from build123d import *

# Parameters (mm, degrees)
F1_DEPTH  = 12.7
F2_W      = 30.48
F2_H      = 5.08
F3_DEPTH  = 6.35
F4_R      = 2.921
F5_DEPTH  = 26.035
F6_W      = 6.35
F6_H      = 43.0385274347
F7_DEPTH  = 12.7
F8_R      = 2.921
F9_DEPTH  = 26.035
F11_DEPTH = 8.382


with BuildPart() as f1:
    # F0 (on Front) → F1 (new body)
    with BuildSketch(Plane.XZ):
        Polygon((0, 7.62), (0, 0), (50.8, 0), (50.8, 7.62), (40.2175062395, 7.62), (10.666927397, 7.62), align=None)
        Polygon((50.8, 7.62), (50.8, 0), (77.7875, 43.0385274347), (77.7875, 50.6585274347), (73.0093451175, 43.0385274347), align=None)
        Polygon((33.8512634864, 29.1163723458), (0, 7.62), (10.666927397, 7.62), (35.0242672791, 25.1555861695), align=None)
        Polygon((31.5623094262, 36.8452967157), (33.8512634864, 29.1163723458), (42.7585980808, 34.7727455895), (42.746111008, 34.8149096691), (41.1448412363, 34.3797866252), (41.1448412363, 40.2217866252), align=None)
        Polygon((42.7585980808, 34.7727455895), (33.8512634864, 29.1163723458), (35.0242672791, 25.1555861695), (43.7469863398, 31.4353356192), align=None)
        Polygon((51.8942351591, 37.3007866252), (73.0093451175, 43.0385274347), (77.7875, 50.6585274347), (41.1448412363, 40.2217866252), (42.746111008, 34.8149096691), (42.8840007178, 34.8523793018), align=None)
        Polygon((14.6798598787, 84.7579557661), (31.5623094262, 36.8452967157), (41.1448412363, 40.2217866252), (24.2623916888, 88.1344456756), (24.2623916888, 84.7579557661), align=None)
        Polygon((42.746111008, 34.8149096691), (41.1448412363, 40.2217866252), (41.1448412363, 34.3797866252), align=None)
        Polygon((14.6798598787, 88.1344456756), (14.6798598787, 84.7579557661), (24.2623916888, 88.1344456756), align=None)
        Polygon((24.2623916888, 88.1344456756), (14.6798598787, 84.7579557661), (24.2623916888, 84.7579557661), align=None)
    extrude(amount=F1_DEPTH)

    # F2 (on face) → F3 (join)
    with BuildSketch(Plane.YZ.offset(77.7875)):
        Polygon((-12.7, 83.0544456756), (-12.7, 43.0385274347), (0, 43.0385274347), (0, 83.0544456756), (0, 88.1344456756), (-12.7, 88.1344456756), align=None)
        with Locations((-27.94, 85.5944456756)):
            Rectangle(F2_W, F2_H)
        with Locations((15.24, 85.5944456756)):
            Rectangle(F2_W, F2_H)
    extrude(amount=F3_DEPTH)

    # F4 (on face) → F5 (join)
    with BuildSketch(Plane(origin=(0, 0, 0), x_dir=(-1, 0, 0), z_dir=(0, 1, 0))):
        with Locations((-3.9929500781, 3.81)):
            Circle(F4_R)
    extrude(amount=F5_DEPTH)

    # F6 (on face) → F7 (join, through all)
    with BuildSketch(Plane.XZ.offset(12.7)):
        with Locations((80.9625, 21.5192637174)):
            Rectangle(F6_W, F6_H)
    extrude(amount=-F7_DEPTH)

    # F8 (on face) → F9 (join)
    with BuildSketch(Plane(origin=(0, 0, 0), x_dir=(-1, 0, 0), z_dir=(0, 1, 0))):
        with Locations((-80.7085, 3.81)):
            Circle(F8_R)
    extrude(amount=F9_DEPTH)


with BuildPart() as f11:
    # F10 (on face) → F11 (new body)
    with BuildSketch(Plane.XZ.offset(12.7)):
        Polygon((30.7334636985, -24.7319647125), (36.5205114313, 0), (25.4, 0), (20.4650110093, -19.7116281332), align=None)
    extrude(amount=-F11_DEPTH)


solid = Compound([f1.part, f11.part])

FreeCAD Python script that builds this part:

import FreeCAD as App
import Part
import Sketcher

V = App.Vector
Q = App.Units.Quantity


def add_polygon(sketch, points):
    """Adds a closed chain of lines whose ends are joined by coincident constraints."""
    first, n = sketch.GeometryCount, len(points)
    for a, b in zip(points, points[1:] + points[:1]):
        sketch.addGeometry(Part.LineSegment(App.Vector(*a, 0), App.Vector(*b, 0)), False)
    for i in range(n):
        sketch.addConstraint(Sketcher.Constraint("Coincident", first + i, 2, first + (i + 1) % n, 1))

doc = App.newDocument("Part")
body = doc.addObject("PartDesign::Body", "Body")

sketch1 = body.newObject("Sketcher::SketchObject", "Sketch")
sketch1.AttachmentSupport = (doc.getObject("XZ_Plane"), [""])
sketch1.MapMode = "FlatFace"
add_polygon(sketch1, [(77.787, 50.659), (41.145, 40.222), (24.262, 88.134), (14.68, 88.134), (14.68, 84.758), (31.562, 36.845), (33.851, 29.116), (0, 7.62), (0, 0), (50.8, 0), (77.787, 43.039)])
add_polygon(sketch1, [(42.759, 34.773), (42.746, 34.815), (42.884, 34.852), (51.894, 37.301), (73.009, 43.039), (50.8, 7.62), (10.667, 7.62), (35.024, 25.156), (43.747, 31.435)])
sketch1.addConstraint([
    Sketcher.Constraint("Horizontal", 2),
    Sketcher.Constraint("Vertical", 3),
    Sketcher.Constraint("Vertical", 7),
    Sketcher.Constraint("Horizontal", 8),
    Sketcher.Constraint("Vertical", 10),
    Sketcher.Constraint("Horizontal", 16),
    Sketcher.Constraint("Coincident", 7, 2, -1, 1),
    Sketcher.Constraint("Parallel", 1, 4),
    Sketcher.Constraint("Parallel", 5, 11),
    Sketcher.Constraint("Parallel", 12, 13),
    Sketcher.Constraint("Parallel", 13, 14),
    Sketcher.Constraint("Parallel", 9, 15),
    Sketcher.Constraint("Parallel", 17, 18),
    Sketcher.Constraint("Parallel", 11, 19),
    Sketcher.Constraint("Horizontal", 9, 2, 14, 2),
    Sketcher.Constraint("Horizontal", 6, 2, 15, 2),
    Sketcher.Constraint("Vertical", 8, 2, 15, 2),
    Sketcher.Constraint("Equal", 7, 10),
    Sketcher.Constraint("Equal", 1, 4),
    Sketcher.Constraint("Equal", 4, 9),
    Sketcher.Constraint("DistanceX", 8, 1, 8, 2, Q("2 in")),
    Sketcher.Constraint("Distance", 1, Q("2 in")),
    Sketcher.Constraint("DistanceY", 7, 2, 7, 1, Q("0.3 in")),
    Sketcher.Constraint("Distance", 0, Q("1.5 in")),
    Sketcher.Constraint("DistanceX", -1, 1, 9, 2, Q("3.0625 in")),
    Sketcher.Constraint("DistanceY", 13, 2, 0, 2, Q("0.115 in")),
    Sketcher.Constraint("Distance", 6, Q("40.099901 mm")),
    Sketcher.Constraint("DistanceX", 2, 2, 2, 1, Q("9.582532 mm")),
    Sketcher.Constraint("DistanceY", 3, 2, 3, 1, Q("3.37649 mm")),
    Sketcher.Constraint("DistanceX", -1, 1, 12, 2, Q("42.884001 mm")),
    Sketcher.Constraint("DistanceX", -1, 1, 19, 2, Q("42.758598 mm")),
    Sketcher.Constraint("DistanceX", 4, 2, 11, 2, Q("11.183802 mm")),
    Sketcher.Constraint("DistanceY", 17, 2, 0, 2, Q("15.0662 mm")),
    Sketcher.Constraint("Distance", 12, Q("0.14289 mm")),
    Sketcher.Constraint("Distance", 13, Q("9.336971 mm")),
    Sketcher.Constraint("Distance", 19, Q("3.480692 mm")),
    Sketcher.Constraint("DistanceX", 16, 2, 16, 1, Q("40.133073 mm")),
    Sketcher.Constraint("DistanceX", -1, 1, 1, 2, Q("24.262392 mm")),
    Sketcher.Constraint("DistanceX", 1, 2, 5, 2, Q("9.588872 mm")),
])
pad1 = body.newObject("PartDesign::Pad", "Pad")
pad1.Profile = sketch1
pad1.Length = Q("0.5 in")

sketch2 = body.newObject("Sketcher::SketchObject", "Sketch001")
sketch2.AttachmentSupport = (doc.getObject("YZ_Plane"), [""])
sketch2.MapMode = "FlatFace"
sketch2.AttachmentOffset = App.Placement(V(0, 0, 3.0625 * 25.4), App.Rotation())
add_polygon(sketch2, [(-13, 43), (0, 43), (0, 83), (30, 83), (30, 88), (-43, 88), (-43, 83), (-13, 83)])
sketch2.addConstraint([
    Sketcher.Constraint("Horizontal", 0),
    Sketcher.Constraint("Vertical", 1),
    Sketcher.Constraint("Horizontal", 2),
    Sketcher.Constraint("Vertical", 3),
    Sketcher.Constraint("Horizontal", 4),
    Sketcher.Constraint("Vertical", 5),
    Sketcher.Constraint("Horizontal", 6),
    Sketcher.Constraint("Vertical", 7),
    Sketcher.Constraint("PointOnObject", 0, 2, -2),
    Sketcher.Constraint("Horizontal", 2, 2, 5, 2),
    Sketcher.Constraint("Equal", 2, 6),
    Sketcher.Constraint("DistanceX", 0, 1, 0, 2, Q("0.5 in")),
    Sketcher.Constraint("DistanceX", 2, 1, 2, 2, Q("1.2 in")),
    Sketcher.Constraint("DistanceY", 3, 1, 3, 2, Q("0.2 in")),
    Sketcher.Constraint("DistanceY", 1, 1, 1, 2, Q("40.015918 mm")),
    Sketcher.Constraint("DistanceY", -1, 1, 0, 2, Q("43.038527 mm")),
])
pad2 = body.newObject("PartDesign::Pad", "Pad001")
pad2.Profile = sketch2
pad2.Length = Q("0.25 in")

sketch3 = body.newObject("Sketcher::SketchObject", "Sketch002")
sketch3.AttachmentSupport = (doc.getObject("XZ_Plane"), [""])
sketch3.MapMode = "FlatFace"
sketch3.addGeometry(Part.Circle(V(4, 3.8, 0), V(0, 0, 1), 2.9), False)
sketch3.addConstraint([
    Sketcher.Constraint("Diameter", 0, Q("0.23 in")),
    Sketcher.Constraint("DistanceY", -1, 1, 0, 3, Q("0.15 in")),
    Sketcher.Constraint("DistanceX", -1, 1, 0, 3, Q("3.99295 mm")),
])
pad3 = body.newObject("PartDesign::Pad", "Pad002")
pad3.Profile = sketch3
pad3.Length = Q("1.025 in")
pad3.Reversed = True

sketch4 = body.newObject("Sketcher::SketchObject", "Sketch003")
sketch4.AttachmentSupport = (doc.getObject("XZ_Plane"), [""])
sketch4.MapMode = "FlatFace"
sketch4.AttachmentOffset = App.Placement(V(0, 0, 0.5 * 25.4), App.Rotation())
add_polygon(sketch4, [(78, 43), (78, 0), (84, 0), (84, 43)])
sketch4.addConstraint([
    Sketcher.Constraint("Vertical", 0),
    Sketcher.Constraint("Horizontal", 1),
    Sketcher.Constraint("Vertical", 2),
    Sketcher.Constraint("Horizontal", 3),
    Sketcher.Constraint("PointOnObject", 0, 2, -1),
    Sketcher.Constraint("DistanceX", 1, 1, 1, 2, Q("0.25 in")),
    Sketcher.Constraint("DistanceX", -1, 1, 0, 2, Q("3.0625 in")),
    Sketcher.Constraint("DistanceY", 0, 2, 0, 1, Q("43.038527 mm")),
])
pad4 = body.newObject("PartDesign::Pad", "Pad003")
pad4.Profile = sketch4
pad4.Length = Q("0.5 in")
pad4.Reversed = True

sketch5 = body.newObject("Sketcher::SketchObject", "Sketch004")
sketch5.AttachmentSupport = (doc.getObject("XZ_Plane"), [""])
sketch5.MapMode = "FlatFace"
sketch5.addGeometry(Part.Circle(V(80.7, 3.8, 0), V(0, 0, 1), 2.9), False)
sketch5.addConstraint([
    Sketcher.Constraint("Diameter", 0, Q("0.23 in")),
    Sketcher.Constraint("DistanceY", -1, 1, 0, 3, Q("0.15 in")),
    Sketcher.Constraint("DistanceX", -1, 1, 0, 3, Q("3.1775 in")),
])
pad5 = body.newObject("PartDesign::Pad", "Pad004")
pad5.Profile = sketch5
pad5.Length = Q("1.025 in")
pad5.Reversed = True
body2 = doc.addObject("PartDesign::Body", "Body001")

sketch6 = body2.newObject("Sketcher::SketchObject", "Sketch005")
sketch6.AttachmentSupport = (doc.getObject("XZ_Plane001"), [""])
sketch6.MapMode = "FlatFace"
sketch6.AttachmentOffset = App.Placement(V(0, 0, 0.5 * 25.4), App.Rotation())
add_polygon(sketch6, [(31, -25), (37, 0), (25, 0), (20, -20)])
sketch6.addConstraint([
    Sketcher.Constraint("Horizontal", 1),
    Sketcher.Constraint("PointOnObject", 0, 2, -1),
    Sketcher.Constraint("Distance", 0, Q("1 in")),
    Sketcher.Constraint("DistanceX", -1, 1, 1, 2, Q("1 in")),
    Sketcher.Constraint("Distance", 2, Q("0.8 in")),
    Sketcher.Constraint("Distance", 3, Q("0.45 in")),
    Sketcher.Constraint("DistanceX", 1, 2, 1, 1, Q("11.120511 mm")),
    Sketcher.Constraint("DistanceX", 2, 2, 0, 2, Q("16.0555 mm")),
])
pad6 = body2.newObject("PartDesign::Pad", "Pad005")
pad6.Profile = sketch6
pad6.Length = Q("0.33 in")
pad6.Reversed = True

doc.recompute()
